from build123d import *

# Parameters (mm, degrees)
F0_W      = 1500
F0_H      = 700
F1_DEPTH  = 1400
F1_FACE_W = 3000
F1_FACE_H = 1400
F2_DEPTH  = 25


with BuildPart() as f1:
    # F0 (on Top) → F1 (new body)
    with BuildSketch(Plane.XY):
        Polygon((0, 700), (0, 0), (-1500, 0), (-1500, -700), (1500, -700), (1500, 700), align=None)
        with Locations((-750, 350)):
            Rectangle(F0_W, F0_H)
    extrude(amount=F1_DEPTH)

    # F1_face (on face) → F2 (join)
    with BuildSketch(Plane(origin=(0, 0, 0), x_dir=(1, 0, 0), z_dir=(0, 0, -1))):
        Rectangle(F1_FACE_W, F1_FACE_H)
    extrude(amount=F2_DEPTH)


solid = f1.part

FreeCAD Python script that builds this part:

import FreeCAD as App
import Part
import Sketcher
Q = App.Units.Quantity

doc = App.newDocument("Part")
params = doc.addObject("Spreadsheet::Sheet", "Params")
for row, (alias, value) in enumerate([
    ("sketch1_width", "3000 mm"),
    ("sketch1_height", "1400 mm"),
    ("pad1_length", "1400 mm"),
    ("sketch2_width", "3000 mm"),
    ("sketch2_height", "1400 mm"),
    ("pad2_length", "25 mm"),
], start=1):
    params.set(f"A{row}", alias)
    params.set(f"B{row}", "=" + value)
    params.setAlias(f"B{row}", alias)

body = doc.addObject("PartDesign::Body", "Body")

# Sketch on XY plane
sketch1 = body.newObject("Sketcher::SketchObject", "Sketch")
sketch1.AttachmentSupport = (doc.getObject("XY_Plane"), [""])
sketch1.MapMode = "FlatFace"
sketch1.addGeometry(Part.LineSegment(App.Vector(-1500, -700, 0), App.Vector(1500, -700, 0)), False)
sketch1.addGeometry(Part.LineSegment(App.Vector(1500, -700, 0), App.Vector(1500, 700, 0)), False)
sketch1.addGeometry(Part.LineSegment(App.Vector(1500, 700, 0), App.Vector(-1500, 700, 0)), False)
sketch1.addGeometry(Part.LineSegment(App.Vector(-1500, 700, 0), App.Vector(-1500, -700, 0)), False)
sketch1.addConstraint(Sketcher.Constraint("Coincident", 0, 2, 1, 1))
sketch1.addConstraint(Sketcher.Constraint("Coincident", 1, 2, 2, 1))
sketch1.addConstraint(Sketcher.Constraint("Coincident", 2, 2, 3, 1))
sketch1.addConstraint(Sketcher.Constraint("Coincident", 3, 2, 0, 1))
sketch1.addConstraint(Sketcher.Constraint("Horizontal", 0))
sketch1.addConstraint(Sketcher.Constraint("Vertical", 1))
sketch1.addConstraint(Sketcher.Constraint("Horizontal", 2))
sketch1.addConstraint(Sketcher.Constraint("Vertical", 3))
sketch1.addConstraint(Sketcher.Constraint("Symmetric", 0, 2, 2, 2, -1, 1))
sketch1.addConstraint(Sketcher.Constraint("DistanceX", 0, 1, 0, 2, Q("3000 mm")))
sketch1.addConstraint(Sketcher.Constraint("DistanceY", 1, 1, 1, 2, Q("1400 mm")))
sketch1.setExpression("Constraints[9]", "Params.sketch1_width")
sketch1.setExpression("Constraints[10]", "Params.sketch1_height")
pad1 = body.newObject("PartDesign::Pad", "Pad")
pad1.Profile = sketch1
pad1.setExpression("Length", "Params.pad1_length")

# Sketch on XY plane
sketch2 = body.newObject("Sketcher::SketchObject", "Sketch001")
sketch2.AttachmentSupport = (doc.getObject("XY_Plane"), [""])
sketch2.MapMode = "FlatFace"
sketch2.addGeometry(Part.LineSegment(App.Vector(-1500, -700, 0), App.Vector(-1500, 700, 0)), False)
sketch2.addGeometry(Part.LineSegment(App.Vector(-1500, 700, 0), App.Vector(1500, 700, 0)), False)
sketch2.addGeometry(Part.LineSegment(App.Vector(1500, 700, 0), App.Vector(1500, -700, 0)), False)
sketch2.addGeometry(Part.LineSegment(App.Vector(1500, -700, 0), App.Vector(-1500, -700, 0)), False)
sketch2.addConstraint(Sketcher.Constraint("Coincident", 0, 2, 1, 1))
sketch2.addConstraint(Sketcher.Constraint("Coincident", 1, 2, 2, 1))
sketch2.addConstraint(Sketcher.Constraint("Coincident", 2, 2, 3, 1))
sketch2.addConstraint(Sketcher.Constraint("Coincident", 3, 2, 0, 1))
sketch2.addConstraint(Sketcher.Constraint("Vertical", 0))
sketch2.addConstraint(Sketcher.Constraint("Horizontal", 1))
sketch2.addConstraint(Sketcher.Constraint("Vertical", 2))
sketch2.addConstraint(Sketcher.Constraint("Horizontal", 3))
sketch2.addConstraint(Sketcher.Constraint("Symmetric", 0, 2, 2, 2, -1, 1))
sketch2.addConstraint(Sketcher.Constraint("DistanceX", 1, 1, 1, 2, Q("3000 mm")))
sketch2.addConstraint(Sketcher.Constraint("DistanceY", 0, 1, 0, 2, Q("1400 mm")))
sketch2.setExpression("Constraints[9]", "Params.sketch2_width")
sketch2.setExpression("Constraints[10]", "Params.sketch2_height")
pad2 = body.newObject("PartDesign::Pad", "Pad001")
pad2.Profile = sketch2
pad2.setExpression("Length", "Params.pad2_length")
pad2.Reversed = True

doc.recompute()
